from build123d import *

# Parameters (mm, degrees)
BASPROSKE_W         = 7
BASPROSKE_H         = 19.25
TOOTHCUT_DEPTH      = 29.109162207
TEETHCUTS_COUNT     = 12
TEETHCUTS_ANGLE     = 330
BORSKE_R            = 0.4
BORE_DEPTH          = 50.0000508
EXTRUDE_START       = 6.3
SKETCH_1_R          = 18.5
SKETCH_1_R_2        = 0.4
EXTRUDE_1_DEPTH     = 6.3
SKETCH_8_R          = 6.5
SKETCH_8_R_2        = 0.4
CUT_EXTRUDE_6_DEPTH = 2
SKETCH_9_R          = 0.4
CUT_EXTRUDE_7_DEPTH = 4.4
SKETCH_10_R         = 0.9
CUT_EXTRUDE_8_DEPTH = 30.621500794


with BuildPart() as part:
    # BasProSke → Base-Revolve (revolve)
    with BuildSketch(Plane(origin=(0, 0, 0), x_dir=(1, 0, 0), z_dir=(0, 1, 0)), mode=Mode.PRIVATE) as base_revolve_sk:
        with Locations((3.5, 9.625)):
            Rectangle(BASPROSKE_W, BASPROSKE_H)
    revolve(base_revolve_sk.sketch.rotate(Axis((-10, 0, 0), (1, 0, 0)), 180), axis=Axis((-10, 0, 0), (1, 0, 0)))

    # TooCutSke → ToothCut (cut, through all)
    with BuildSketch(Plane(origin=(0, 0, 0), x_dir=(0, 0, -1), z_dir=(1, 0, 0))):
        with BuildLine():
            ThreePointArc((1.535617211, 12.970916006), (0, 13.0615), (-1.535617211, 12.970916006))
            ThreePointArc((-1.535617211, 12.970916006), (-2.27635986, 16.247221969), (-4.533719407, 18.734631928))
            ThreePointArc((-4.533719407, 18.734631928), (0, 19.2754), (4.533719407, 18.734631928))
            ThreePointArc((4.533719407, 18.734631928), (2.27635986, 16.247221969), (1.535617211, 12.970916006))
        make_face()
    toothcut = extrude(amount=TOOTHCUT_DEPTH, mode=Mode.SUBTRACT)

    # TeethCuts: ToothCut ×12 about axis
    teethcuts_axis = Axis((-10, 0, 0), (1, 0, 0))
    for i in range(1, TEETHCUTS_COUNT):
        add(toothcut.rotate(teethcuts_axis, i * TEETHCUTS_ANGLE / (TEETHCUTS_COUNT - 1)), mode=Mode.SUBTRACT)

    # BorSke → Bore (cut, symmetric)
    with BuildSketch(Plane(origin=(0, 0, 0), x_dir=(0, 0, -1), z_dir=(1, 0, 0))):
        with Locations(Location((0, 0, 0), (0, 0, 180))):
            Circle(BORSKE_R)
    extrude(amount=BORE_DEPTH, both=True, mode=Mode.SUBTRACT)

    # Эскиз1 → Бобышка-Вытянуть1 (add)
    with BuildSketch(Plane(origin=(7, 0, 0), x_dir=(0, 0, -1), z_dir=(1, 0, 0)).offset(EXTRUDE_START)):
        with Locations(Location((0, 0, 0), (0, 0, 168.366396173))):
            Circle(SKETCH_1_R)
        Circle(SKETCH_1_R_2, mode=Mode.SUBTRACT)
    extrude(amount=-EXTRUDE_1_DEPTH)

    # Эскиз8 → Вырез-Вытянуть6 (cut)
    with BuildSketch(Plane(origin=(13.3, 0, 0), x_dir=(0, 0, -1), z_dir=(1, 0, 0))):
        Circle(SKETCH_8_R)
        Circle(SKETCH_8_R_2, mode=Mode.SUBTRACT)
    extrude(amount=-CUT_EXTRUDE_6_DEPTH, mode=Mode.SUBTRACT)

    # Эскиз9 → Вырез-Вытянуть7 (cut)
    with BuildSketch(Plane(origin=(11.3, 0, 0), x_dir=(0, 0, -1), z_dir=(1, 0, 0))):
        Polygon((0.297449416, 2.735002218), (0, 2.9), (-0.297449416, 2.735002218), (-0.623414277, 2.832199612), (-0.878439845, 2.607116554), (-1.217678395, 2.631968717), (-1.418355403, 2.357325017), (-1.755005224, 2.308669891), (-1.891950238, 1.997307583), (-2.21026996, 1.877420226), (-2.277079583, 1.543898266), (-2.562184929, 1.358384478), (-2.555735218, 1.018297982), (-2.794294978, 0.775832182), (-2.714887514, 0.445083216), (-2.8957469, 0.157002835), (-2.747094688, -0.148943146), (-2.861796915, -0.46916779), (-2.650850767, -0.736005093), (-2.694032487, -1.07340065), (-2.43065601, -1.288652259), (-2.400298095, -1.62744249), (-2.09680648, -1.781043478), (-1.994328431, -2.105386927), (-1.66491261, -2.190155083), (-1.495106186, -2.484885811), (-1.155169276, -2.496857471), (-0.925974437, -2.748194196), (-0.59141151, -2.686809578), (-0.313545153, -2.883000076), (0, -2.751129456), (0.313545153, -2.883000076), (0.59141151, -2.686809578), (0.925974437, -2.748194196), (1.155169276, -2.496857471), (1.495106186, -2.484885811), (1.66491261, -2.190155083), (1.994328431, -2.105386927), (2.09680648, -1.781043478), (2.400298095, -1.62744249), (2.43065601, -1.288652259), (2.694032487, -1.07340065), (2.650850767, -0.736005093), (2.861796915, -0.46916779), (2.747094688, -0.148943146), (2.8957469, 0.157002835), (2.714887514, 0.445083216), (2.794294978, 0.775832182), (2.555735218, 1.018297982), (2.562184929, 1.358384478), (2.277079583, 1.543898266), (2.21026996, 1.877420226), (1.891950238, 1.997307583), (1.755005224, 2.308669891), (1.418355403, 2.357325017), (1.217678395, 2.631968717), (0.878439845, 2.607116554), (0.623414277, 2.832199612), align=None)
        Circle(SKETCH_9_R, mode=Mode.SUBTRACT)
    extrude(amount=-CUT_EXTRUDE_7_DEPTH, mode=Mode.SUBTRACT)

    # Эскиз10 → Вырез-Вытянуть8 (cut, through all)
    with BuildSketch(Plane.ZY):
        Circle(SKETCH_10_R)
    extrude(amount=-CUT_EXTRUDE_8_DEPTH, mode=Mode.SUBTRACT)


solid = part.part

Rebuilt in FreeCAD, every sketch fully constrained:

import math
import FreeCAD as App
import Part
import Sketcher
from FreeCAD import Vector
Q = App.Units.Quantity


def add_polygon(sketch, points):
    """Adds a closed chain of lines whose ends are joined by coincident constraints."""
    first, n = sketch.GeometryCount, len(points)
    for a, b in zip(points, points[1:] + points[:1]):
        sketch.addGeometry(Part.LineSegment(App.Vector(*a, 0), App.Vector(*b, 0)), False)
    for i in range(n):
        sketch.addConstraint(Sketcher.Constraint("Coincident", first + i, 2, first + (i + 1) % n, 1))

doc = App.newDocument("Part")
body = doc.addObject("PartDesign::Body", "Body")

# Sketch on XZ plane
sketch1 = doc.addObject("Sketcher::SketchObject", "Sketch")
body.addObject(sketch1)
sketch1.AttachmentSupport = (doc.XZ_Plane, [""])
sketch1.MapMode = "FlatFace"
add_polygon(sketch1, [(0, -19.25), (0, 0), (7, 0), (7, -19.25)])  # lines 0-3
sketch1.addConstraint([
    Sketcher.Constraint("Vertical", 0),
    Sketcher.Constraint("Horizontal", 1),
    Sketcher.Constraint("Vertical", 2),
    Sketcher.Constraint("Horizontal", 3),
    Sketcher.Constraint("Coincident", 0, 2, -1, 1),
    Sketcher.Constraint("DistanceX", 1, 1, 1, 2, Q("7 mm")),
    Sketcher.Constraint("DistanceY", 0, 1, 0, 2, Q("19.25 mm")),
])
revolution = doc.addObject("PartDesign::Revolution", "Revolution")
body.addObject(revolution)
revolution.Profile = sketch1
revolution.ReferenceAxis = (sketch1, ["H_Axis"])
revolution.Angle = 360

# Sketch on YZ plane
sketch2 = doc.addObject("Sketcher::SketchObject", "Sketch001")
body.addObject(sketch2)
sketch2.AttachmentSupport = (doc.YZ_Plane, [""])
sketch2.MapMode = "FlatFace"
sketch2.addGeometry([
    Part.ArcOfCircle(Part.Circle(Vector(0, 0, 0), Vector(0, 0, 1), 13.0615), math.radians(-6.751778), math.radians(6.751778)),
    Part.ArcOfCircle(Part.Circle(Vector(13.201518, -8.131587, 0), Vector(0, 0, 1), 6.6), math.radians(33.033651), math.radians(92.002308)),
    Part.ArcOfCircle(Part.Circle(Vector(0, 0, 0), Vector(0, 0, 1), 19.2754), math.radians(-13.603857), math.radians(13.603857)),
    Part.ArcOfCircle(Part.Circle(Vector(13.201518, 8.131587, 0), Vector(0, 0, 1), 6.6), math.radians(-92.002308), math.radians(-33.033651)),
], False)
sketch2.addConstraint([
    Sketcher.Constraint("Coincident", 0, 1, 1, 2),
    Sketcher.Constraint("Coincident", 1, 1, 2, 1),
    Sketcher.Constraint("Coincident", 2, 2, 3, 2),
    Sketcher.Constraint("Coincident", 3, 1, 0, 2),
    Sketcher.Constraint("Coincident", 0, 3, -1, 1),
    Sketcher.Constraint("Coincident", 2, 3, -1, 1),
    Sketcher.Constraint("Equal", 1, 3),
    Sketcher.Constraint("Symmetric", 1, 3, 3, 3, -1),
    Sketcher.Constraint("Radius", 1, Q("6.6 mm")),
    Sketcher.Constraint("Radius", 0, Q("13.0615 mm")),
    Sketcher.Constraint("Radius", 2, Q("19.2754 mm")),
    Sketcher.Constraint("DistanceX", -1, 1, 1, 3, Q("13.201518 mm")),
    Sketcher.Constraint("DistanceX", -1, 1, 1, 1, Q("18.734632 mm")),
])
pocket1 = doc.addObject("PartDesign::Pocket", "Pocket")
body.addObject(pocket1)
pocket1.Profile = sketch2
pocket1.Type = "ThroughAll"
pocket1.Reversed = True
doc.recompute()

polarpattern = doc.addObject("PartDesign::PolarPattern", "PolarPattern")
body.addObject(polarpattern)
polarpattern.Originals = [pocket1]
polarpattern.Axis = (doc.X_Axis, [""])
polarpattern.Angle = 360
polarpattern.Occurrences = 12
body.Tip = polarpattern

# Sketch on YZ plane
sketch3 = doc.addObject("Sketcher::SketchObject", "Sketch002")
body.addObject(sketch3)
sketch3.AttachmentSupport = (doc.YZ_Plane, [""])
sketch3.MapMode = "FlatFace"
sketch3.addGeometry(Part.Circle(Vector(0, 0, 0), Vector(0, 0, 1), 0.4), False)
sketch3.addConstraint([
    Sketcher.Constraint("Coincident", 0, 3, -1, 1),
    Sketcher.Constraint("Diameter", 0, Q("0.8 mm")),
])
pocket2 = doc.addObject("PartDesign::Pocket", "Pocket001")
body.addObject(pocket2)
pocket2.Profile = sketch3
pocket2.Length = 100.000102
pocket2.Midplane = True

# Sketch on YZ plane
sketch4 = doc.addObject("Sketcher::SketchObject", "Sketch003")
body.addObject(sketch4)
sketch4.AttachmentSupport = (doc.YZ_Plane, [""])
sketch4.MapMode = "FlatFace"
sketch4.AttachmentOffset = App.Placement(Vector(0, 0, 13.3), App.Rotation())
sketch4.addGeometry([
    Part.Circle(Vector(0, 0, 0), Vector(0, 0, 1), 18.5),
    Part.Circle(Vector(0, 0, 0), Vector(0, 0, 1), 0.4),
], False)
sketch4.addConstraint([
    Sketcher.Constraint("Coincident", 0, 3, -1, 1),
    Sketcher.Constraint("Coincident", 1, 3, -1, 1),
    Sketcher.Constraint("Diameter", 0, Q("37 mm")),
    Sketcher.Constraint("Diameter", 1, Q("0.8 mm")),
])
pad1 = doc.addObject("PartDesign::Pad", "Pad")
body.addObject(pad1)
pad1.Profile = sketch4
pad1.Length = 6.3
pad1.Reversed = True

# Sketch on YZ plane
sketch5 = doc.addObject("Sketcher::SketchObject", "Sketch004")
body.addObject(sketch5)
sketch5.AttachmentSupport = (doc.YZ_Plane, [""])
sketch5.MapMode = "FlatFace"
sketch5.AttachmentOffset = App.Placement(Vector(0, 0, 13.3), App.Rotation())
sketch5.addGeometry([
    Part.Circle(Vector(0, 0, 0), Vector(0, 0, 1), 6.5),
    Part.Circle(Vector(0, 0, 0), Vector(0, 0, 1), 0.4),
], False)
sketch5.addConstraint([
    Sketcher.Constraint("Coincident", 0, 3, -1, 1),
    Sketcher.Constraint("Coincident", 1, 3, -1, 1),
    Sketcher.Constraint("Diameter", 0, Q("13 mm")),
    Sketcher.Constraint("Diameter", 1, Q("0.8 mm")),
])
pocket3 = doc.addObject("PartDesign::Pocket", "Pocket002")
body.addObject(pocket3)
pocket3.Profile = sketch5
pocket3.Length = 2

# Sketch on YZ plane
sketch6 = doc.addObject("Sketcher::SketchObject", "Sketch005")
body.addObject(sketch6)
sketch6.AttachmentSupport = (doc.YZ_Plane, [""])
sketch6.MapMode = "FlatFace"
sketch6.AttachmentOffset = App.Placement(Vector(0, 0, 11.3), App.Rotation())
add_polygon(sketch6, [(2.735002, -0.297449), (2.9, 0), (2.735002, 0.297449), (2.8322, 0.623414), (2.607117, 0.87844), (2.631969, 1.217678), (2.357325, 1.418355), (2.30867, 1.755005), (1.997308, 1.89195), (1.87742, 2.21027), (1.543898, 2.27708), (1.358384, 2.562185), (1.018298, 2.555735), (0.775832, 2.794295), (0.445083, 2.714888), (0.157003, 2.895747), (-0.148943, 2.747095), (-0.469168, 2.861797), (-0.736005, 2.650851), (-1.073401, 2.694032), (-1.288652, 2.430656), (-1.627442, 2.400298), (-1.781043, 2.096806), (-2.105387, 1.994328), (-2.190155, 1.664913), (-2.484886, 1.495106), (-2.496857, 1.155169), (-2.748194, 0.925974), (-2.68681, 0.591412), (-2.883, 0.313545), (-2.751129, 0), (-2.883, -0.313545), (-2.68681, -0.591412), (-2.748194, -0.925974), (-2.496857, -1.155169), (-2.484886, -1.495106), (-2.190155, -1.664913), (-2.105387, -1.994328), (-1.781043, -2.096806), (-1.627442, -2.400298), (-1.288652, -2.430656), (-1.073401, -2.694032), (-0.736005, -2.650851), (-0.469168, -2.861797), (-0.148943, -2.747095), (0.157003, -2.895747), (0.445083, -2.714888), (0.775832, -2.794295), (1.018298, -2.555735), (1.358384, -2.562185), (1.543898, -2.27708), (1.87742, -2.21027), (1.997308, -1.89195), (2.30867, -1.755005), (2.357325, -1.418355), (2.631969, -1.217678), (2.607117, -0.87844), (2.8322, -0.623414)])  # lines 0-57
sketch6.addGeometry(Part.Circle(Vector(0, 0, 0), Vector(0, 0, 1), 0.4), False)  # 58
sketch6.addConstraint([
    Sketcher.Constraint("Coincident", 58, 3, -1, 1),
    Sketcher.Constraint("PointOnObject", 0, 2, -1),
    Sketcher.Constraint("PointOnObject", 29, 2, -1),
    Sketcher.Constraint("Diameter", 58, Q("0.8 mm")),
    Sketcher.Constraint("DistanceX", -1, 1, 0, 2, Q("2.9 mm")),
    Sketcher.Constraint("DistanceX", 28, 2, -1, 1, Q("2.883 mm")),
    Sketcher.Constraint("DistanceX", 30, 2, -1, 1, Q("2.883 mm")),
    Sketcher.Constraint("DistanceX", 16, 2, 12, 2, Q("1.245 mm")),
    Sketcher.Constraint("DistanceX", 42, 2, 46, 2, Q("1.245 mm")),
    Sketcher.Constraint("DistanceX", -1, 1, 2, 2, Q("2.8322 mm")),
    Sketcher.Constraint("DistanceX", -1, 1, 9, 2, Q("1.543898 mm")),
    Sketcher.Constraint("DistanceX", 18, 2, -1, 1, Q("1.073401 mm")),
    Sketcher.Constraint("DistanceY", -1, 1, 20, 2, Q("2.400298 mm")),
    Sketcher.Constraint("DistanceY", 38, 2, -1, 1, Q("2.400298 mm")),
    Sketcher.Constraint("DistanceX", 40, 2, -1, 1, Q("1.073401 mm")),
    Sketcher.Constraint("DistanceX", -1, 1, 49, 2, Q("1.543898 mm")),
    Sketcher.Constraint("DistanceX", -1, 1, 56, 2, Q("2.8322 mm")),
    Sketcher.Constraint("DistanceX", 6, 2, 4, 2, Q("0.323299 mm")),
    Sketcher.Constraint("DistanceY", 4, 2, 9, 2, Q("1.059401 mm")),
    Sketcher.Constraint("DistanceX", 11, 2, 9, 2, Q("0.5256 mm")),
    Sketcher.Constraint("DistanceX", 13, 2, 10, 2, Q("0.913301 mm")),
    Sketcher.Constraint("DistanceY", 15, 2, 12, 2, Q("0.0472 mm")),
    Sketcher.Constraint("DistanceY", 12, 2, 16, 2, Q("0.067502 mm")),
    Sketcher.Constraint("DistanceY", 20, 2, 16, 2, Q("0.461499 mm")),
    Sketcher.Constraint("DistanceX", 20, 2, 15, 2, Q("1.478499 mm")),
    Sketcher.Constraint("DistanceX", 21, 2, 20, 2, Q("0.153601 mm")),
    Sketcher.Constraint("DistanceX", 24, 2, 22, 2, Q("0.379499 mm")),
    Sketcher.Constraint("DistanceY", 24, 2, 21, 2, Q("0.6017 mm")),
    Sketcher.Constraint("DistanceY", 27, 2, 23, 2, Q("1.073501 mm")),
    Sketcher.Constraint("DistanceY", 35, 2, 31, 2, Q("1.073501 mm")),
    Sketcher.Constraint("DistanceX", 34, 2, 36, 2, Q("0.379499 mm")),
    Sketcher.Constraint("DistanceY", 37, 2, 34, 2, Q("0.6017 mm")),
    Sketcher.Constraint("DistanceX", 37, 2, 38, 2, Q("0.153601 mm")),
    Sketcher.Constraint("DistanceY", 42, 2, 38, 2, Q("0.461499 mm")),
    Sketcher.Constraint("DistanceX", 38, 2, 43, 2, Q("1.478499 mm")),
    Sketcher.Constraint("DistanceY", 46, 2, 43, 2, Q("0.0472 mm")),
    Sketcher.Constraint("DistanceY", 42, 2, 46, 2, Q("0.067502 mm")),
    Sketcher.Constraint("DistanceX", 45, 2, 48, 2, Q("0.913301 mm")),
    Sketcher.Constraint("DistanceX", 47, 2, 49, 2, Q("0.5256 mm")),
    Sketcher.Constraint("DistanceX", 52, 2, 54, 2, Q("0.323299 mm")),
    Sketcher.Constraint("DistanceY", 57, 2, 1, 2, Q("0.594899 mm")),
    Sketcher.Constraint("DistanceY", -1, 1, 1, 2, Q("0.297449 mm")),
    Sketcher.Constraint("DistanceY", -1, 1, 3, 2, Q("0.87844 mm")),
    Sketcher.Constraint("DistanceX", -1, 1, 4, 2, Q("2.631969 mm")),
    Sketcher.Constraint("DistanceY", -1, 1, 4, 2, Q("1.217678 mm")),
    Sketcher.Constraint("DistanceY", -1, 1, 7, 2, Q("1.89195 mm")),
    Sketcher.Constraint("DistanceX", -1, 1, 8, 2, Q("1.87742 mm")),
    Sketcher.Constraint("DistanceY", -1, 1, 8, 2, Q("2.21027 mm")),
    Sketcher.Constraint("DistanceY", -1, 1, 17, 2, Q("2.650851 mm")),
    Sketcher.Constraint("DistanceY", -1, 1, 22, 2, Q("1.994328 mm")),
    Sketcher.Constraint("DistanceY", -1, 1, 25, 2, Q("1.155169 mm")),
    Sketcher.Constraint("DistanceX", 27, 2, -1, 1, Q("2.68681 mm")),
    Sketcher.Constraint("DistanceY", -1, 1, 27, 2, Q("0.591412 mm")),
    Sketcher.Constraint("DistanceX", 29, 2, -1, 1, Q("2.751129 mm")),
    Sketcher.Constraint("DistanceX", 31, 2, -1, 1, Q("2.68681 mm")),
    Sketcher.Constraint("DistanceY", 31, 2, -1, 1, Q("0.591412 mm")),
    Sketcher.Constraint("DistanceY", 33, 2, -1, 1, Q("1.155169 mm")),
    Sketcher.Constraint("DistanceY", 36, 2, -1, 1, Q("1.994328 mm")),
    Sketcher.Constraint("DistanceY", 41, 2, -1, 1, Q("2.650851 mm")),
    Sketcher.Constraint("DistanceY", 49, 2, -1, 1, Q("2.27708 mm")),
    Sketcher.Constraint("DistanceX", -1, 1, 50, 2, Q("1.87742 mm")),
    Sketcher.Constraint("DistanceY", 50, 2, -1, 1, Q("2.21027 mm")),
    Sketcher.Constraint("DistanceY", 51, 2, -1, 1, Q("1.89195 mm")),
    Sketcher.Constraint("DistanceX", -1, 1, 52, 2, Q("2.30867 mm")),
    Sketcher.Constraint("DistanceY", 54, 2, -1, 1, Q("1.217678 mm")),
    Sketcher.Constraint("DistanceY", 55, 2, -1, 1, Q("0.87844 mm")),
    Sketcher.Constraint("DistanceX", 5, 2, 3, 2, Q("0.249792 mm")),
    Sketcher.Constraint("DistanceY", 2, 2, 5, 2, Q("0.794941 mm")),
    Sketcher.Constraint("DistanceY", 5, 2, 6, 2, Q("0.33665 mm")),
    Sketcher.Constraint("DistanceX", 7, 2, 4, 2, Q("0.634661 mm")),
    Sketcher.Constraint("DistanceX", 7, 2, 3, 2, Q("0.609809 mm")),
    Sketcher.Constraint("DistanceY", 6, 2, 10, 2, Q("0.80718 mm")),
    Sketcher.Constraint("DistanceX", 10, 2, 5, 2, Q("0.998941 mm")),
    Sketcher.Constraint("DistanceY", 11, 2, 10, 2, Q("0.00645 mm")),
    Sketcher.Constraint("DistanceY", 11, 2, 12, 2, Q("0.23856 mm")),
    Sketcher.Constraint("DistanceX", 12, 2, 8, 2, Q("1.101588 mm")),
    Sketcher.Constraint("DistanceX", 14, 2, 13, 2, Q("0.28808 mm")),
    Sketcher.Constraint("DistanceY", 13, 2, 14, 2, Q("0.180859 mm")),
    Sketcher.Constraint("DistanceY", 12, 2, 14, 2, Q("0.101452 mm")),
    Sketcher.Constraint("DistanceX", 15, 2, 11, 2, Q("1.167241 mm")),
    Sketcher.Constraint("DistanceX", 17, 2, 15, 2, Q("0.587062 mm")),
    Sketcher.Constraint("DistanceY", 17, 2, 18, 2, Q("0.043182 mm")),
    Sketcher.Constraint("DistanceX", 19, 2, 18, 2, Q("0.215252 mm")),
    Sketcher.Constraint("DistanceY", 19, 2, 16, 2, Q("0.431141 mm")),
    Sketcher.Constraint("DistanceY", 21, 2, 20, 2, Q("0.303492 mm")),
    Sketcher.Constraint("DistanceX", 22, 2, 17, 2, Q("1.369382 mm")),
    Sketcher.Constraint("DistanceX", 23, 2, 22, 2, Q("0.084768 mm")),
    Sketcher.Constraint("DistanceX", 25, 2, 24, 2, Q("0.011972 mm")),
    Sketcher.Constraint("DistanceX", 26, 2, 24, 2, Q("0.263308 mm")),
    Sketcher.Constraint("DistanceY", 26, 2, 24, 2, Q("0.569132 mm")),
    Sketcher.Constraint("DistanceY", 28, 2, 26, 2, Q("0.612429 mm")),
    Sketcher.Constraint("DistanceY", 30, 2, 28, 2, Q("0.62709 mm")),
    Sketcher.Constraint("DistanceY", 32, 2, 30, 2, Q("0.612429 mm")),
    Sketcher.Constraint("DistanceX", 29, 2, 33, 2, Q("0.254272 mm")),
    Sketcher.Constraint("DistanceX", 33, 2, 34, 2, Q("0.011972 mm")),
    Sketcher.Constraint("DistanceX", 32, 2, 34, 2, Q("0.263308 mm")),
    Sketcher.Constraint("DistanceY", 34, 2, 32, 2, Q("0.569132 mm")),
    Sketcher.Constraint("DistanceX", 34, 2, 35, 2, Q("0.294731 mm")),
    Sketcher.Constraint("DistanceX", 35, 2, 37, 2, Q("0.409112 mm")),
    Sketcher.Constraint("DistanceX", 38, 2, 39, 2, Q("0.33879 mm")),
    Sketcher.Constraint("DistanceY", 39, 2, 37, 2, Q("0.33385 mm")),
    Sketcher.Constraint("DistanceY", 40, 2, 35, 2, Q("1.02912 mm")),
    Sketcher.Constraint("DistanceX", 37, 2, 41, 2, Q("1.045038 mm")),
    Sketcher.Constraint("DistanceX", 42, 2, 44, 2, Q("0.626171 mm")),
    Sketcher.Constraint("DistanceY", 44, 2, 42, 2, Q("0.03395 mm")),
    Sketcher.Constraint("DistanceX", 44, 2, 45, 2, Q("0.28808 mm")),
    Sketcher.Constraint("DistanceY", 44, 2, 45, 2, Q("0.180859 mm")),
    Sketcher.Constraint("DistanceX", 41, 2, 45, 2, Q("1.181088 mm")),
    Sketcher.Constraint("DistanceY", 46, 2, 47, 2, Q("0.23856 mm")),
    Sketcher.Constraint("DistanceY", 48, 2, 47, 2, Q("0.00645 mm")),
    Sketcher.Constraint("DistanceX", 49, 2, 51, 2, Q("0.453409 mm")),
    Sketcher.Constraint("DistanceY", 48, 2, 52, 2, Q("0.80718 mm")),
    Sketcher.Constraint("DistanceY", 52, 2, 53, 2, Q("0.33665 mm")),
    Sketcher.Constraint("DistanceX", 48, 2, 53, 2, Q("0.998941 mm")),
    Sketcher.Constraint("DistanceX", 53, 2, 55, 2, Q("0.249792 mm")),
    Sketcher.Constraint("DistanceY", 53, 2, 56, 2, Q("0.794941 mm")),
    Sketcher.Constraint("Distance", 0, Q("0.340148 mm")),
    Sketcher.Constraint("Distance", 1, Q("0.340148 mm")),
])
pocket4 = doc.addObject("PartDesign::Pocket", "Pocket003")
body.addObject(pocket4)
pocket4.Profile = sketch6
pocket4.Length = 4.4

# Sketch on YZ plane
sketch7 = doc.addObject("Sketcher::SketchObject", "Sketch006")
body.addObject(sketch7)
sketch7.AttachmentSupport = (doc.YZ_Plane, [""])
sketch7.MapMode = "FlatFace"
sketch7.addGeometry(Part.Circle(Vector(0, 0, 0), Vector(0, 0, 1), 0.9), False)
sketch7.addConstraint([
    Sketcher.Constraint("Coincident", 0, 3, -1, 1),
    Sketcher.Constraint("Diameter", 0, Q("1.8 mm")),
])
pocket5 = doc.addObject("PartDesign::Pocket", "Pocket004")
body.addObject(pocket5)
pocket5.Profile = sketch7
pocket5.Type = "ThroughAll"
pocket5.Reversed = True

doc.recompute()
